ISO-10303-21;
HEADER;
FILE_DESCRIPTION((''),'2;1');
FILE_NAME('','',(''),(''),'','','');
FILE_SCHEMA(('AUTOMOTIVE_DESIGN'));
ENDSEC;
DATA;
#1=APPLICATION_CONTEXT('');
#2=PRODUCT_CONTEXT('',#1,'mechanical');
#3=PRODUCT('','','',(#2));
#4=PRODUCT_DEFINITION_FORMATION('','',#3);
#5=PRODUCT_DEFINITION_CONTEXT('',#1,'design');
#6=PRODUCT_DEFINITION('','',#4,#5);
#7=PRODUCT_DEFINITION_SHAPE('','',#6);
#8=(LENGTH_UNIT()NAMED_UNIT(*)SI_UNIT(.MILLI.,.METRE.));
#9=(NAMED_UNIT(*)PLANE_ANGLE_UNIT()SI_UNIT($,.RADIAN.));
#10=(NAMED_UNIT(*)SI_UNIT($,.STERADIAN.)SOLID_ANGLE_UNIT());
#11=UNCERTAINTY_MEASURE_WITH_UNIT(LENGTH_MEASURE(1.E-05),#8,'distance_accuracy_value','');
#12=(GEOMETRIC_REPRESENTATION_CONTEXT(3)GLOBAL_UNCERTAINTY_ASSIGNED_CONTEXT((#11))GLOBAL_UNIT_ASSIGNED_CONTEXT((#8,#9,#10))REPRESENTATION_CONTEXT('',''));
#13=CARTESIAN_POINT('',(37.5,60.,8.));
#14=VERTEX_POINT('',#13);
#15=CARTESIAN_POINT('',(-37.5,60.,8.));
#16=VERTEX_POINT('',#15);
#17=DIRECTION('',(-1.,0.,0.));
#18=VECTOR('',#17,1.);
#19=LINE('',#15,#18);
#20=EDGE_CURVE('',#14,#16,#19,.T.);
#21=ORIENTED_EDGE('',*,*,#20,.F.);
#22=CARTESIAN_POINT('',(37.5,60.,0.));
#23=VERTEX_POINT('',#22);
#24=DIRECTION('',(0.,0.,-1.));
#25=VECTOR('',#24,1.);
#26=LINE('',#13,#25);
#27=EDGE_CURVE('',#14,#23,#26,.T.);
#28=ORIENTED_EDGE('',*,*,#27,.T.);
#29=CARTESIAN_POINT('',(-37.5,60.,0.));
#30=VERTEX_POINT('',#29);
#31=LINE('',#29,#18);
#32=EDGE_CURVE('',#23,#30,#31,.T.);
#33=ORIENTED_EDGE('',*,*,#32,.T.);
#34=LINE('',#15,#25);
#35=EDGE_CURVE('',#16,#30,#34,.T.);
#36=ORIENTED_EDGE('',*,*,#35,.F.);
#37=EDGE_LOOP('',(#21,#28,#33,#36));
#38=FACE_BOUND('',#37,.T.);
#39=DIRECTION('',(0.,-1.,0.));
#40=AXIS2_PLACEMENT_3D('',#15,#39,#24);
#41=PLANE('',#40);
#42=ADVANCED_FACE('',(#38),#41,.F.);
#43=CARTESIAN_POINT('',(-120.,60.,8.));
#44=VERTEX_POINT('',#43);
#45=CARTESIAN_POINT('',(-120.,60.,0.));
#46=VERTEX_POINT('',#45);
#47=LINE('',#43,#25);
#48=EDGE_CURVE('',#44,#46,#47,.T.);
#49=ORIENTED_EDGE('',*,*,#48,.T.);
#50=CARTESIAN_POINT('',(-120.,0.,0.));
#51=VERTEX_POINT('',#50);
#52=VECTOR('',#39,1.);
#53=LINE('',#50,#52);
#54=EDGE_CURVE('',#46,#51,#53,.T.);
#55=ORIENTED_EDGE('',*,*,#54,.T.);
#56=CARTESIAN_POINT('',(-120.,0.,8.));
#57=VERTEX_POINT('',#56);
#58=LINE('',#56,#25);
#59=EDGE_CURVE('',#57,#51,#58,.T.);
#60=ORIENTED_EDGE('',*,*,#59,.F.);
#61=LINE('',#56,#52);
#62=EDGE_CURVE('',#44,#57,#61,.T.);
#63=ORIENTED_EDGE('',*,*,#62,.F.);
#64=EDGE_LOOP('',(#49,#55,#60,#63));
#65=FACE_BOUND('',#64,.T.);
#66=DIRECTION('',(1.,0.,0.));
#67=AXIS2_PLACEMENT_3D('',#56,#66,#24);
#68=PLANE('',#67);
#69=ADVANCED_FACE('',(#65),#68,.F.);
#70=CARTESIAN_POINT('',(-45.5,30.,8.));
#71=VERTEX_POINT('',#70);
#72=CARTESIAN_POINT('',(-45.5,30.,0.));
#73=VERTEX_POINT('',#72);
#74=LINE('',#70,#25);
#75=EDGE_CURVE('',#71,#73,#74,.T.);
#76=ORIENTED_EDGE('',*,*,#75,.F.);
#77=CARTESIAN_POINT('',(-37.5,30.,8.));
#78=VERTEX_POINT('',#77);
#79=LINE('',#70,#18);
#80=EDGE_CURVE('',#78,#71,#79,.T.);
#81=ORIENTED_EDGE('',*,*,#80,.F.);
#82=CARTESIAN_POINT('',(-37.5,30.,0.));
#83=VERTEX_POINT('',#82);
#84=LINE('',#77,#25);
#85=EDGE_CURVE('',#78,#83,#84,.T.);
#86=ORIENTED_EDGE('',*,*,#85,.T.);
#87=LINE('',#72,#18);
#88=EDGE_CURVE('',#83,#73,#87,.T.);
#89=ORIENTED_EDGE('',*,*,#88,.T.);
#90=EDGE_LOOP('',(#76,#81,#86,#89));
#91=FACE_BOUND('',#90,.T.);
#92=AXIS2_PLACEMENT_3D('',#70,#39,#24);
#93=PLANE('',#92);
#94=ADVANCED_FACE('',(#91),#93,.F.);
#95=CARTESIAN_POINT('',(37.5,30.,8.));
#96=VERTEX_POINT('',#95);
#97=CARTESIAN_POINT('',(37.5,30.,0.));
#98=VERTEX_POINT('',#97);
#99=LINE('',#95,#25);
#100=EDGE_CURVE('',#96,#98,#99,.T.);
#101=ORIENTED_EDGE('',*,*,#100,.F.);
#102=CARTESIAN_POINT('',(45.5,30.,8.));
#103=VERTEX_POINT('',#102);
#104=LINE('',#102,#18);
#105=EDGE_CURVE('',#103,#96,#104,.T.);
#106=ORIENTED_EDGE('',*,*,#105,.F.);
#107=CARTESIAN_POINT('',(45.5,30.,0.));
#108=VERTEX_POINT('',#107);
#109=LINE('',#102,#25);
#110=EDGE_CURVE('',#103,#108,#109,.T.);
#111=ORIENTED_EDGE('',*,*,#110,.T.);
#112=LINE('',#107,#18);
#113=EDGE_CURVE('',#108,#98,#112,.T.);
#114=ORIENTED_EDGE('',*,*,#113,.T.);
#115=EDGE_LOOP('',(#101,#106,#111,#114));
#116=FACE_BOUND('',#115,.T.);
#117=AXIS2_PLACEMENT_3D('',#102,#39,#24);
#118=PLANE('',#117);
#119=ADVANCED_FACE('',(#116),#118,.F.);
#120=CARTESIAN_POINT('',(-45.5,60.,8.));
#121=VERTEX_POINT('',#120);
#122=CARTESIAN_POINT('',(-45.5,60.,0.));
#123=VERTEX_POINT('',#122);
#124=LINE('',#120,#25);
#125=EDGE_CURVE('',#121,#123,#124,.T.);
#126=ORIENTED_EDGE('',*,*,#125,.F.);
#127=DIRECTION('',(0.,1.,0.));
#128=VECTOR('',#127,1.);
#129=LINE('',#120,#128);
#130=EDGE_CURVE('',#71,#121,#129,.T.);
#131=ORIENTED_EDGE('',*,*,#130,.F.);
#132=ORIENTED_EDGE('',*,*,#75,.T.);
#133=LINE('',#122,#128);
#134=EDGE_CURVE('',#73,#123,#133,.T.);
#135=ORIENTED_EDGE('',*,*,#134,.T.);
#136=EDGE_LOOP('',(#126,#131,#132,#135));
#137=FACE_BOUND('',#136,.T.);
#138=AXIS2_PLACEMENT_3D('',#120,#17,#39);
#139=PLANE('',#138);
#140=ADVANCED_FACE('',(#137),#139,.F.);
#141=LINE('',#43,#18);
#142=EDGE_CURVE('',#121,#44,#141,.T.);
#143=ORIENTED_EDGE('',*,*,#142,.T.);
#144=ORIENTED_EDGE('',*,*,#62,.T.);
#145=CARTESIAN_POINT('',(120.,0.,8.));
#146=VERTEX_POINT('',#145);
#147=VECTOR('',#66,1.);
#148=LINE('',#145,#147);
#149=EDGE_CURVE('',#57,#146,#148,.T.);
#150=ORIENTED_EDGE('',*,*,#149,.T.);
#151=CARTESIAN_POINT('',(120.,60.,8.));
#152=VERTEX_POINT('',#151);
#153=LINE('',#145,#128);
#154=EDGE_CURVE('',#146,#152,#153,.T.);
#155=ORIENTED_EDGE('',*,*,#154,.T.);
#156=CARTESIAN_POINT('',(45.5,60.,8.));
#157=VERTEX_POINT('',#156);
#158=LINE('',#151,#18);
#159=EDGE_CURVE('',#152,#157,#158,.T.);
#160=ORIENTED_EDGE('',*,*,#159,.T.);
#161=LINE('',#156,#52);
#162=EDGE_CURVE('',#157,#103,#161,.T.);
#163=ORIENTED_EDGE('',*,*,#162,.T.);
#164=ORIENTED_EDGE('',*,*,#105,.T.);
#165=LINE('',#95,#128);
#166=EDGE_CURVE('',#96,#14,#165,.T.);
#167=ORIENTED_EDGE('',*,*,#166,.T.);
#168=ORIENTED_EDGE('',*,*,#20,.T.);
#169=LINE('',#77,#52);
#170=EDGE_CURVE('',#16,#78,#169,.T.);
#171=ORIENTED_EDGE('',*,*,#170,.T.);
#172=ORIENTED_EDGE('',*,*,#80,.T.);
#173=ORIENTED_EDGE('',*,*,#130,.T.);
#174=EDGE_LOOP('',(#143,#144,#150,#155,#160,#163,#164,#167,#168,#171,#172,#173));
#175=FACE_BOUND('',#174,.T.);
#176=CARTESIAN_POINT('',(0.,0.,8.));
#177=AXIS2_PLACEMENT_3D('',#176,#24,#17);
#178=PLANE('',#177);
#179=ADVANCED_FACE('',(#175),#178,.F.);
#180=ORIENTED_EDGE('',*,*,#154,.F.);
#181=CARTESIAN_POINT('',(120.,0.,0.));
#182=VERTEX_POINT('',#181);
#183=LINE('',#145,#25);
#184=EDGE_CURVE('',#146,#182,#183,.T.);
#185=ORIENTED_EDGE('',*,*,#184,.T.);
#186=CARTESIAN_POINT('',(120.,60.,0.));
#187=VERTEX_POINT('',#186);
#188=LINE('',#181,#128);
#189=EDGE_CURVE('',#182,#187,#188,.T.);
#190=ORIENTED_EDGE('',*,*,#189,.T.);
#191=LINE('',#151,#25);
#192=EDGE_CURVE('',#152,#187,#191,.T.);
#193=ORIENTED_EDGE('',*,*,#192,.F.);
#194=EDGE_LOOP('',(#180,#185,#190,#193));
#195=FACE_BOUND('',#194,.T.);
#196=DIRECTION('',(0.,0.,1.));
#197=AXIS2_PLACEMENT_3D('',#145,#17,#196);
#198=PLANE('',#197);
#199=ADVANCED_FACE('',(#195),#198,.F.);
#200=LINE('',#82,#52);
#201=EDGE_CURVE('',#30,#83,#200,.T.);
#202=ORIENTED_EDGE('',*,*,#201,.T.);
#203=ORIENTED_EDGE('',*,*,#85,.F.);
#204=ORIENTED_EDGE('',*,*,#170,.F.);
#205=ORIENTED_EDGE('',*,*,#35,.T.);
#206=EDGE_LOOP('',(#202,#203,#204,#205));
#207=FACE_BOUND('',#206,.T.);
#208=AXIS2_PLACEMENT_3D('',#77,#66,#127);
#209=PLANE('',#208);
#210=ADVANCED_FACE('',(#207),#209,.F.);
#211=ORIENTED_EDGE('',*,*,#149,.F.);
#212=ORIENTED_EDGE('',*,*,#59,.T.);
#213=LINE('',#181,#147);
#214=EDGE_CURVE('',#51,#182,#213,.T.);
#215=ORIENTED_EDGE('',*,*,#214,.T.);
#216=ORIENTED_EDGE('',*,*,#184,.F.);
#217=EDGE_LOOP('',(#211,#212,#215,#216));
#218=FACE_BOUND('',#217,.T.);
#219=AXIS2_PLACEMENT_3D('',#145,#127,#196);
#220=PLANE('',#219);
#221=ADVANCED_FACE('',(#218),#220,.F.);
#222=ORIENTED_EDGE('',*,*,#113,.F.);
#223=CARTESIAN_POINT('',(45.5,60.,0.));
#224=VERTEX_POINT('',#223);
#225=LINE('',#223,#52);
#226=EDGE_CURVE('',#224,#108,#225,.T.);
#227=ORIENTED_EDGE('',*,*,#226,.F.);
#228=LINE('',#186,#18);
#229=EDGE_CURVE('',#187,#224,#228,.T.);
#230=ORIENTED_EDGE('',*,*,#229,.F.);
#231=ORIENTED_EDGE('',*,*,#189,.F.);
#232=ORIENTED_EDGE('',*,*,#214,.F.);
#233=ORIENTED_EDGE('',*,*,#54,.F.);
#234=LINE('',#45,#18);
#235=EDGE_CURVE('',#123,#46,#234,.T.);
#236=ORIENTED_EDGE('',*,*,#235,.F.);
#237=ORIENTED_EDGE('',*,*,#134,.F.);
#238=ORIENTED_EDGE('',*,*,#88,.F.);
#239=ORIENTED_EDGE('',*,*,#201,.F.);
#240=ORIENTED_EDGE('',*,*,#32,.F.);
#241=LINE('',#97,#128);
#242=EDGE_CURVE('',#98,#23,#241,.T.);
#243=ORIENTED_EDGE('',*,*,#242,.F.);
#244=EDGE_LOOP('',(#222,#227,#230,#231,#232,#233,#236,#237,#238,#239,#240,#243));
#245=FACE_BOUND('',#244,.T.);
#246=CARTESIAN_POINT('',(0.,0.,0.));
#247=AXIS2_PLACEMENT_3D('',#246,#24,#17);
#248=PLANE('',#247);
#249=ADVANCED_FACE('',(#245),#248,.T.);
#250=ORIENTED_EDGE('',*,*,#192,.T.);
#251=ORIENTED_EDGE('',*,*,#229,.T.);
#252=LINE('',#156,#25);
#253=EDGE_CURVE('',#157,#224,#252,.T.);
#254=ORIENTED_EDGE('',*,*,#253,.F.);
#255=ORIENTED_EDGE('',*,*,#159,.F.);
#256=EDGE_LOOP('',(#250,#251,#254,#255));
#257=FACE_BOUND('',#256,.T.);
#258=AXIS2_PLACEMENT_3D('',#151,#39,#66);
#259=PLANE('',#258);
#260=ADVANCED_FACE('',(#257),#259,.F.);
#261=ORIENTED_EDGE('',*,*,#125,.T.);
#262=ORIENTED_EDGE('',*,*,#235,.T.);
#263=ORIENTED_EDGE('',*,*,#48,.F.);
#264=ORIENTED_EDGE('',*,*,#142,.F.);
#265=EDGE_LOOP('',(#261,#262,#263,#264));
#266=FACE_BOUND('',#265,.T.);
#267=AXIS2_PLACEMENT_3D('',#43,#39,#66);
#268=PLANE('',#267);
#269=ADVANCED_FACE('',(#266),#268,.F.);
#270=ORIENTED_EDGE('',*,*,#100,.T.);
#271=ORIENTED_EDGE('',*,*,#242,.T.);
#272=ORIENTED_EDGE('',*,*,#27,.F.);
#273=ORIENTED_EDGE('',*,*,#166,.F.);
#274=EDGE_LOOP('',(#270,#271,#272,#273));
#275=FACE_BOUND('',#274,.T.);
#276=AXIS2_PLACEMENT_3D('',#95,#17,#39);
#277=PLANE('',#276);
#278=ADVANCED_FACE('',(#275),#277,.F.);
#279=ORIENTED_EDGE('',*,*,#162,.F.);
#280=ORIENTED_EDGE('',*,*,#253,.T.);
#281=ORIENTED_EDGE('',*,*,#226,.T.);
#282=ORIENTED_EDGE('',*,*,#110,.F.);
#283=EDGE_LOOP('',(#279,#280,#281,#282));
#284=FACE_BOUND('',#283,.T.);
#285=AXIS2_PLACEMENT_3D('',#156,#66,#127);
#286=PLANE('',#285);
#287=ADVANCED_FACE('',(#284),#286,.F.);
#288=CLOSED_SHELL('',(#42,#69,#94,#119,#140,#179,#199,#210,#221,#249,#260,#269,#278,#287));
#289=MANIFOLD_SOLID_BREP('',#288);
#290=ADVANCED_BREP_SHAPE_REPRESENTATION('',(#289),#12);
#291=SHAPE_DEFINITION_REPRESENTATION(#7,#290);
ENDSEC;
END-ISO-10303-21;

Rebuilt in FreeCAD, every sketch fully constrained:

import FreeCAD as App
import Part
import Sketcher


def add_polygon(sketch, points):
    """Adds a closed chain of lines whose ends are joined by coincident constraints."""
    first, n = sketch.GeometryCount, len(points)
    for a, b in zip(points, points[1:] + points[:1]):
        sketch.addGeometry(Part.LineSegment(App.Vector(*a, 0), App.Vector(*b, 0)), False)
    for i in range(n):
        sketch.addConstraint(Sketcher.Constraint("Coincident", first + i, 2, first + (i + 1) % n, 1))

doc = App.newDocument("Part")
body = doc.addObject("PartDesign::Body", "Body")

# Sketch on XY plane
sketch1 = body.newObject("Sketcher::SketchObject", "Sketch")
sketch1.AttachmentSupport = (doc.getObject("XY_Plane"), [""])
sketch1.MapMode = "FlatFace"
add_polygon(sketch1, [(-120, 0), (120, 0), (120, 60), (45.5, 60), (45.5, 30), (37.5, 30), (37.5, 60), (-37.5, 60), (-37.5, 30), (-45.5, 30), (-45.5, 60), (-120, 60)])  # lines 0-11
sketch1.addConstraint([
    Sketcher.Constraint("Horizontal", 0),
    Sketcher.Constraint("Vertical", 1),
    Sketcher.Constraint("Horizontal", 2),
    Sketcher.Constraint("Vertical", 3),
    Sketcher.Constraint("Horizontal", 4),
    Sketcher.Constraint("Vertical", 5),
    Sketcher.Constraint("Horizontal", 6),
    Sketcher.Constraint("Vertical", 7),
    Sketcher.Constraint("Horizontal", 8),
    Sketcher.Constraint("Vertical", 9),
    Sketcher.Constraint("Horizontal", 10),
    Sketcher.Constraint("Vertical", 11),
    Sketcher.Constraint("Symmetric", 0, 2, 11, 2, -1, 1),
    Sketcher.Constraint("Symmetric", 4, 2, 7, 2, -2),
    Sketcher.Constraint("Symmetric", 2, 2, 9, 2, -2),
    Sketcher.Constraint("Horizontal", 2, 2, 5, 2),
    Sketcher.Constraint("DistanceX", 0, 1, 0, 2, 240.0),
    Sketcher.Constraint("DistanceX", 4, 2, 4, 1, 8.0),
    Sketcher.Constraint("DistanceX", 6, 2, 6, 1, 75.0),
    Sketcher.Constraint("DistanceY", 1, 1, 1, 2, 60.0),
    Sketcher.Constraint("DistanceY", 3, 2, 3, 1, 30.0),
])
pad1 = body.newObject("PartDesign::Pad", "Pad")
pad1.Profile = sketch1
pad1.Length = 8

doc.recompute()
